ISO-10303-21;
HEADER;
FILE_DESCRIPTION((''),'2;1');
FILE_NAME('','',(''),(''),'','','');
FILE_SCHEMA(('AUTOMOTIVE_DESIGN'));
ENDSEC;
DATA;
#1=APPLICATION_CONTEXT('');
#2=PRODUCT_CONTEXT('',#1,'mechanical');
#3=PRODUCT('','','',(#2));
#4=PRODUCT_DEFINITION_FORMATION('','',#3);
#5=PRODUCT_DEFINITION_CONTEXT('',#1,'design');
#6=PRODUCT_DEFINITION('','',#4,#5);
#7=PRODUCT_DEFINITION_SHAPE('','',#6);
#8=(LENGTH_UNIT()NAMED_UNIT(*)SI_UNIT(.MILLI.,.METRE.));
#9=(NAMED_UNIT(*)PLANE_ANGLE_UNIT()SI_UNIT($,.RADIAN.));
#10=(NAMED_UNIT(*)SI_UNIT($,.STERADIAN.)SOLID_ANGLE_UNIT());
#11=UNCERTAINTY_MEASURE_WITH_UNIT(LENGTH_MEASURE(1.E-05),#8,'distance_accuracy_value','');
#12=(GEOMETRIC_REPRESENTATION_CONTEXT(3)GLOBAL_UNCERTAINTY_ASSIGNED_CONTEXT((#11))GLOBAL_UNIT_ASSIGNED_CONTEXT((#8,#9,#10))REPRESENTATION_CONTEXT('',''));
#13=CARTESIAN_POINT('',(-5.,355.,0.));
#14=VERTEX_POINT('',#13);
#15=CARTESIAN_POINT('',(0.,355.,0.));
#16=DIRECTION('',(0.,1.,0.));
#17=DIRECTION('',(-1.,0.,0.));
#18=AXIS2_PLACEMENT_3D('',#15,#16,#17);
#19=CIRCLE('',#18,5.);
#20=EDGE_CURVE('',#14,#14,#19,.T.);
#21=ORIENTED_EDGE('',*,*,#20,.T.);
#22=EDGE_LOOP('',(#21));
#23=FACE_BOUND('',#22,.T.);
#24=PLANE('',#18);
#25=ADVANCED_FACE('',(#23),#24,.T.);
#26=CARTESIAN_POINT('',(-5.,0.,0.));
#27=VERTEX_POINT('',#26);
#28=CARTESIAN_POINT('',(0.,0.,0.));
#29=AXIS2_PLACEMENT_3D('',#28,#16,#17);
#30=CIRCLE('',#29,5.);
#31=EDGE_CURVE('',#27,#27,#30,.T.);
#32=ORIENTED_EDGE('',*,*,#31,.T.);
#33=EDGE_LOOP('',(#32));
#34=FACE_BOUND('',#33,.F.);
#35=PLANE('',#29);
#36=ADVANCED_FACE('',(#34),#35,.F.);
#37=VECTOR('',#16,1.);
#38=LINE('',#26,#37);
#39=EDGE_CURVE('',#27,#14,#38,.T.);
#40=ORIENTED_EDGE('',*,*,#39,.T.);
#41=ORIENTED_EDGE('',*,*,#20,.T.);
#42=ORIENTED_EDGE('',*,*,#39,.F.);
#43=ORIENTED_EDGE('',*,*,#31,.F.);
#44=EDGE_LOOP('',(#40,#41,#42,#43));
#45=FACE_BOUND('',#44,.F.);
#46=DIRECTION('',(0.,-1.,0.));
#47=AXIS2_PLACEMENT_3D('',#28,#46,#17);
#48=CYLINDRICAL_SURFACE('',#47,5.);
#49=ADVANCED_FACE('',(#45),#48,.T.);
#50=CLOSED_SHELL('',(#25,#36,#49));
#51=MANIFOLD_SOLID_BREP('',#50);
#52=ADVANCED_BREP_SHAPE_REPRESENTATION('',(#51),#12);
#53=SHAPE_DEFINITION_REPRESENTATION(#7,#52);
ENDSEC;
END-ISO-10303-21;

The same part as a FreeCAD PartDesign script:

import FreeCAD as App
import Part
import Sketcher
Q = App.Units.Quantity

doc = App.newDocument("Part")
params = doc.addObject("Spreadsheet::Sheet", "Params")
for row, (alias, value) in enumerate([
    ("sketch1_diameter", "10 mm"),
    ("pad1_length", "355 mm"),
], start=1):
    params.set(f"A{row}", alias)
    params.set(f"B{row}", "=" + value)
    params.setAlias(f"B{row}", alias)

body = doc.addObject("PartDesign::Body", "Body")

# Sketch on XZ plane
sketch1 = body.newObject("Sketcher::SketchObject", "Sketch")
sketch1.AttachmentSupport = (doc.getObject("XZ_Plane"), [""])
sketch1.MapMode = "FlatFace"
sketch1.addGeometry(Part.Circle(App.Vector(0, 0, 0), App.Vector(0, 0, 1), 5), False)
sketch1.addConstraint([
    Sketcher.Constraint("Coincident", 0, 3, -1, 1),
    Sketcher.Constraint("Diameter", 0, Q("10 mm")),
])
sketch1.setExpression("Constraints[1]", "Params.sketch1_diameter")
pad1 = body.newObject("PartDesign::Pad", "Pad")
pad1.Profile = sketch1
pad1.setExpression("Length", "Params.pad1_length")
pad1.Reversed = True

doc.recompute()
